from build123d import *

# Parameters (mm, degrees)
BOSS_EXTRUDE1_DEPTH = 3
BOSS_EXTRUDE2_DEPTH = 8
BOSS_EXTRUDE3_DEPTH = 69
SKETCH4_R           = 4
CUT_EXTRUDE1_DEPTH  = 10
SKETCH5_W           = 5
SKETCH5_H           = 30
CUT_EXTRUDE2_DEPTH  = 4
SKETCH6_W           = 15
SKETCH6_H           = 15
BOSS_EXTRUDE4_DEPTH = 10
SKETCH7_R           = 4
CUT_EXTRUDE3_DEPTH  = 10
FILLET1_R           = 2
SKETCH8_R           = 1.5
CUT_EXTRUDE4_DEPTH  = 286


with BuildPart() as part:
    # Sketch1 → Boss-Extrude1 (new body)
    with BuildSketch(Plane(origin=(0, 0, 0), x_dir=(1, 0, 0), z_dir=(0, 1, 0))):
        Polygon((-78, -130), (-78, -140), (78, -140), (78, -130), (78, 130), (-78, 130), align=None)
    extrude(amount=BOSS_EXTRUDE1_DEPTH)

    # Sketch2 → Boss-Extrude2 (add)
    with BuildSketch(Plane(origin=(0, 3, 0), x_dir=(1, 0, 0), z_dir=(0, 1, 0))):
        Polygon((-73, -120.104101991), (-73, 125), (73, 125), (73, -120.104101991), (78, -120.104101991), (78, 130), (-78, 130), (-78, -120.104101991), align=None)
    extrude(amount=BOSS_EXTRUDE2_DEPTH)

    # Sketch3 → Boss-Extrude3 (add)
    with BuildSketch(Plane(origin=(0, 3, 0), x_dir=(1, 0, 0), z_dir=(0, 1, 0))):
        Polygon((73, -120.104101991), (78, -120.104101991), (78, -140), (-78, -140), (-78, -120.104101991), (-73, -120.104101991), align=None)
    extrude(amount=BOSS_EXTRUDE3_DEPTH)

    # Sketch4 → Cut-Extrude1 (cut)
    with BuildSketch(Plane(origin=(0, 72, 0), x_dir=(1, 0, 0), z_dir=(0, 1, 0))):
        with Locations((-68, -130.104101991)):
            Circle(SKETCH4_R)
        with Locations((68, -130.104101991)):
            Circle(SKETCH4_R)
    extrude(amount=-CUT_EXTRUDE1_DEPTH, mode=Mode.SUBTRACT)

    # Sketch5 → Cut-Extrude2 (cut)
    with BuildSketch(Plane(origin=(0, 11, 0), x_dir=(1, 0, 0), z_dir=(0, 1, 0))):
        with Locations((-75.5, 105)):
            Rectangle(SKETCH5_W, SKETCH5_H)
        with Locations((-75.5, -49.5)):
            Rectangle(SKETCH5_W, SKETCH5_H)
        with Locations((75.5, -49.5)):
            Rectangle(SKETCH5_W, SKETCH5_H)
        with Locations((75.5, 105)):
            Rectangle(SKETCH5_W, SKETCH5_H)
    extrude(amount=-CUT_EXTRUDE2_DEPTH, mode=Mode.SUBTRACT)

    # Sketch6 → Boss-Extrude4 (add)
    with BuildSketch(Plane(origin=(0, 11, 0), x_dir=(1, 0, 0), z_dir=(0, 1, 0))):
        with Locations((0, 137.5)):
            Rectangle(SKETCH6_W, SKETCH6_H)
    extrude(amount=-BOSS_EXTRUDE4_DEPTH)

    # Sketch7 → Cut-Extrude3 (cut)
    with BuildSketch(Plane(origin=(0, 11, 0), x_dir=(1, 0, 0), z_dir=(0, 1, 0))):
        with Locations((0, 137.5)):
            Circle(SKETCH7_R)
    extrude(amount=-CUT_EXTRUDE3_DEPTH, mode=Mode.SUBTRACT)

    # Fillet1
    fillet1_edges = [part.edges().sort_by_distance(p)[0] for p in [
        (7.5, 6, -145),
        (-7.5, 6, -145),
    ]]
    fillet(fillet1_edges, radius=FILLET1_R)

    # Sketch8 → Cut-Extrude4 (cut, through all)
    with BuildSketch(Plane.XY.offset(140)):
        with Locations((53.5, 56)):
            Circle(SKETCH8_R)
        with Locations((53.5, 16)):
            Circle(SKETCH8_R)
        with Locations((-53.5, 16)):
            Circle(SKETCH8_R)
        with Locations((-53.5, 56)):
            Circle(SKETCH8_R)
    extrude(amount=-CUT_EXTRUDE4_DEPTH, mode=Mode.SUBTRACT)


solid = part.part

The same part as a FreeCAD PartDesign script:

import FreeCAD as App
import Part
import Sketcher

V = App.Vector


def edges_at(feature, points):
    """Names of the edges that pass closest to the given points."""
    edges = feature.Shape.Edges
    near = lambda p: min(range(len(edges)), key=lambda i: edges[i].distToShape(Part.Vertex(*p))[0])
    return sorted({f"Edge{near(p) + 1}" for p in points})

doc = App.newDocument("Part")
body = doc.addObject("PartDesign::Body", "Body")

sketch1 = body.newObject("Sketcher::SketchObject", "Sketch")
sketch1.AttachmentSupport = (doc.getObject("XZ_Plane"), [""])
sketch1.MapMode = "FlatFace"
sketch1.addGeometry(Part.LineSegment(V(-78, 140, 0), V(78, 140, 0)), False)
sketch1.addGeometry(Part.LineSegment(V(78, 140, 0), V(78, -130, 0)), False)
sketch1.addGeometry(Part.LineSegment(V(78, -130, 0), V(-78, -130, 0)), False)
sketch1.addGeometry(Part.LineSegment(V(-78, -130, 0), V(-78, 140, 0)), False)
sketch1.addConstraint(Sketcher.Constraint("Coincident", 0, 2, 1, 1))
sketch1.addConstraint(Sketcher.Constraint("Coincident", 1, 2, 2, 1))
sketch1.addConstraint(Sketcher.Constraint("Coincident", 2, 2, 3, 1))
sketch1.addConstraint(Sketcher.Constraint("Coincident", 3, 2, 0, 1))
sketch1.addConstraint(Sketcher.Constraint("Horizontal", 0))
sketch1.addConstraint(Sketcher.Constraint("Vertical", 1))
sketch1.addConstraint(Sketcher.Constraint("Horizontal", 2))
sketch1.addConstraint(Sketcher.Constraint("Vertical", 3))
sketch1.addConstraint(Sketcher.Constraint("DistanceX", 0, 1, 0, 2, 156.0))
sketch1.addConstraint(Sketcher.Constraint("DistanceY", 1, 2, 1, 1, 270.0))
sketch1.addConstraint(Sketcher.Constraint("DistanceX", -1, 1, 0, 2, 78.0))
sketch1.addConstraint(Sketcher.Constraint("DistanceY", -1, 1, 0, 2, 140.0))
pad1 = body.newObject("PartDesign::Pad", "Pad")
pad1.Profile = sketch1
pad1.Length = 3
pad1.Reversed = True

sketch2 = body.newObject("Sketcher::SketchObject", "Sketch001")
sketch2.AttachmentSupport = (doc.getObject("XZ_Plane"), [""])
sketch2.MapMode = "FlatFace"
sketch2.AttachmentOffset = App.Placement(V(0, 0, -3), App.Rotation())
sketch2.addGeometry(Part.LineSegment(V(-73, 120, 0), V(-73, -125, 0)), False)
sketch2.addGeometry(Part.LineSegment(V(-73, -125, 0), V(73, -125, 0)), False)
sketch2.addGeometry(Part.LineSegment(V(73, -125, 0), V(73, 120, 0)), False)
sketch2.addGeometry(Part.LineSegment(V(73, 120, 0), V(78, 120, 0)), False)
sketch2.addGeometry(Part.LineSegment(V(78, 120, 0), V(78, -130, 0)), False)
sketch2.addGeometry(Part.LineSegment(V(78, -130, 0), V(-78, -130, 0)), False)
sketch2.addGeometry(Part.LineSegment(V(-78, -130, 0), V(-78, 120, 0)), False)
sketch2.addGeometry(Part.LineSegment(V(-78, 120, 0), V(-73, 120, 0)), False)
sketch2.addConstraint(Sketcher.Constraint("Coincident", 0, 2, 1, 1))
sketch2.addConstraint(Sketcher.Constraint("Coincident", 1, 2, 2, 1))
sketch2.addConstraint(Sketcher.Constraint("Coincident", 2, 2, 3, 1))
sketch2.addConstraint(Sketcher.Constraint("Coincident", 3, 2, 4, 1))
sketch2.addConstraint(Sketcher.Constraint("Coincident", 4, 2, 5, 1))
sketch2.addConstraint(Sketcher.Constraint("Coincident", 5, 2, 6, 1))
sketch2.addConstraint(Sketcher.Constraint("Coincident", 6, 2, 7, 1))
sketch2.addConstraint(Sketcher.Constraint("Coincident", 7, 2, 0, 1))
sketch2.addConstraint(Sketcher.Constraint("Vertical", 0))
sketch2.addConstraint(Sketcher.Constraint("Horizontal", 1))
sketch2.addConstraint(Sketcher.Constraint("Vertical", 2))
sketch2.addConstraint(Sketcher.Constraint("Horizontal", 3))
sketch2.addConstraint(Sketcher.Constraint("Vertical", 4))
sketch2.addConstraint(Sketcher.Constraint("Horizontal", 5))
sketch2.addConstraint(Sketcher.Constraint("Vertical", 6))
sketch2.addConstraint(Sketcher.Constraint("Horizontal", 7))
sketch2.addConstraint(Sketcher.Constraint("Symmetric", 3, 2, 6, 2, -2))
sketch2.addConstraint(Sketcher.Constraint("Equal", 3, 7))
sketch2.addConstraint(Sketcher.Constraint("DistanceX", 1, 1, 1, 2, 146.0))
sketch2.addConstraint(Sketcher.Constraint("DistanceX", 3, 1, 3, 2, 5.0))
sketch2.addConstraint(Sketcher.Constraint("DistanceY", 0, 2, -1, 1, 125.0))
sketch2.addConstraint(Sketcher.Constraint("DistanceY", 4, 2, -1, 1, 130.0))
sketch2.addConstraint(Sketcher.Constraint("DistanceY", 0, 2, 0, 1, 245.104102))
pad2 = body.newObject("PartDesign::Pad", "Pad001")
pad2.Profile = sketch2
pad2.Length = 8
pad2.Reversed = True

sketch3 = body.newObject("Sketcher::SketchObject", "Sketch002")
sketch3.AttachmentSupport = (doc.getObject("XZ_Plane"), [""])
sketch3.MapMode = "FlatFace"
sketch3.AttachmentOffset = App.Placement(V(0, 0, -3), App.Rotation())
sketch3.addGeometry(Part.LineSegment(V(78, 120, 0), V(-78, 120, 0)), False)
sketch3.addGeometry(Part.LineSegment(V(-78, 120, 0), V(-78, 140, 0)), False)
sketch3.addGeometry(Part.LineSegment(V(-78, 140, 0), V(78, 140, 0)), False)
sketch3.addGeometry(Part.LineSegment(V(78, 140, 0), V(78, 120, 0)), False)
sketch3.addConstraint(Sketcher.Constraint("Coincident", 0, 2, 1, 1))
sketch3.addConstraint(Sketcher.Constraint("Coincident", 1, 2, 2, 1))
sketch3.addConstraint(Sketcher.Constraint("Coincident", 2, 2, 3, 1))
sketch3.addConstraint(Sketcher.Constraint("Coincident", 3, 2, 0, 1))
sketch3.addConstraint(Sketcher.Constraint("Horizontal", 0))
sketch3.addConstraint(Sketcher.Constraint("Vertical", 1))
sketch3.addConstraint(Sketcher.Constraint("Horizontal", 2))
sketch3.addConstraint(Sketcher.Constraint("Vertical", 3))
sketch3.addConstraint(Sketcher.Constraint("DistanceX", 0, 2, 0, 1, 156.0))
sketch3.addConstraint(Sketcher.Constraint("DistanceX", 0, 2, -1, 1, 78.0))
sketch3.addConstraint(Sketcher.Constraint("DistanceY", -1, 1, 1, 2, 140.0))
sketch3.addConstraint(Sketcher.Constraint("DistanceY", 1, 1, 1, 2, 19.895898))
pad3 = body.newObject("PartDesign::Pad", "Pad002")
pad3.Profile = sketch3
pad3.Length = 69
pad3.Reversed = True

sketch4 = body.newObject("Sketcher::SketchObject", "Sketch003")
sketch4.AttachmentSupport = (doc.getObject("XZ_Plane"), [""])
sketch4.MapMode = "FlatFace"
sketch4.AttachmentOffset = App.Placement(V(0, 0, -72), App.Rotation())
sketch4.addGeometry(Part.Circle(V(-68, 130.1, 0), V(0, 0, 1), 4), False)
sketch4.addGeometry(Part.Circle(V(68, 130.1, 0), V(0, 0, 1), 4), False)
sketch4.addConstraint(Sketcher.Constraint("Equal", 0, 1))
sketch4.addConstraint(Sketcher.Constraint("Symmetric", 0, 3, 1, 3, -2))
sketch4.addConstraint(Sketcher.Constraint("Diameter", 0, 8.0))
sketch4.addConstraint(Sketcher.Constraint("DistanceX", 0, 3, -1, 1, 68.0))
sketch4.addConstraint(Sketcher.Constraint("DistanceY", -1, 1, 0, 3, 130.104102))
pocket1 = body.newObject("PartDesign::Pocket", "Pocket")
pocket1.Profile = sketch4
pocket1.Length = 10
pocket1.Reversed = True

sketch5 = body.newObject("Sketcher::SketchObject", "Sketch004")
sketch5.AttachmentSupport = (doc.getObject("XZ_Plane"), [""])
sketch5.MapMode = "FlatFace"
sketch5.AttachmentOffset = App.Placement(V(0, 0, -11), App.Rotation())
sketch5.addGeometry(Part.LineSegment(V(-78, -120, 0), V(-78, -90, 0)), False)
sketch5.addGeometry(Part.LineSegment(V(-78, -90, 0), V(-73, -90, 0)), False)
sketch5.addGeometry(Part.LineSegment(V(-73, -90, 0), V(-73, -120, 0)), False)
sketch5.addGeometry(Part.LineSegment(V(-73, -120, 0), V(-78, -120, 0)), False)
sketch5.addGeometry(Part.LineSegment(V(-78, 34, 0), V(-78, 64, 0)), False)
sketch5.addGeometry(Part.LineSegment(V(-78, 64, 0), V(-73, 64, 0)), False)
sketch5.addGeometry(Part.LineSegment(V(-73, 64, 0), V(-73, 34, 0)), False)
sketch5.addGeometry(Part.LineSegment(V(-73, 34, 0), V(-78, 34, 0)), False)
sketch5.addGeometry(Part.LineSegment(V(73, 34, 0), V(73, 64, 0)), False)
sketch5.addGeometry(Part.LineSegment(V(73, 64, 0), V(78, 64, 0)), False)
sketch5.addGeometry(Part.LineSegment(V(78, 64, 0), V(78, 34, 0)), False)
sketch5.addGeometry(Part.LineSegment(V(78, 34, 0), V(73, 34, 0)), False)
sketch5.addGeometry(Part.LineSegment(V(73, -120, 0), V(73, -90, 0)), False)
sketch5.addGeometry(Part.LineSegment(V(73, -90, 0), V(78, -90, 0)), False)
sketch5.addGeometry(Part.LineSegment(V(78, -90, 0), V(78, -120, 0)), False)
sketch5.addGeometry(Part.LineSegment(V(78, -120, 0), V(73, -120, 0)), False)
sketch5.addConstraint(Sketcher.Constraint("Coincident", 0, 2, 1, 1))
sketch5.addConstraint(Sketcher.Constraint("Coincident", 1, 2, 2, 1))
sketch5.addConstraint(Sketcher.Constraint("Coincident", 2, 2, 3, 1))
sketch5.addConstraint(Sketcher.Constraint("Coincident", 3, 2, 0, 1))
sketch5.addConstraint(Sketcher.Constraint("Coincident", 4, 2, 5, 1))
sketch5.addConstraint(Sketcher.Constraint("Coincident", 5, 2, 6, 1))
sketch5.addConstraint(Sketcher.Constraint("Coincident", 6, 2, 7, 1))
sketch5.addConstraint(Sketcher.Constraint("Coincident", 7, 2, 4, 1))
sketch5.addConstraint(Sketcher.Constraint("Coincident", 8, 2, 9, 1))
sketch5.addConstraint(Sketcher.Constraint("Coincident", 9, 2, 10, 1))
sketch5.addConstraint(Sketcher.Constraint("Coincident", 10, 2, 11, 1))
sketch5.addConstraint(Sketcher.Constraint("Coincident", 11, 2, 8, 1))
sketch5.addConstraint(Sketcher.Constraint("Coincident", 12, 2, 13, 1))
sketch5.addConstraint(Sketcher.Constraint("Coincident", 13, 2, 14, 1))
sketch5.addConstraint(Sketcher.Constraint("Coincident", 14, 2, 15, 1))
sketch5.addConstraint(Sketcher.Constraint("Coincident", 15, 2, 12, 1))
sketch5.addConstraint(Sketcher.Constraint("Vertical", 0))
sketch5.addConstraint(Sketcher.Constraint("Horizontal", 1))
sketch5.addConstraint(Sketcher.Constraint("Vertical", 2))
sketch5.addConstraint(Sketcher.Constraint("Horizontal", 3))
sketch5.addConstraint(Sketcher.Constraint("Vertical", 4))
sketch5.addConstraint(Sketcher.Constraint("Horizontal", 5))
sketch5.addConstraint(Sketcher.Constraint("Vertical", 6))
sketch5.addConstraint(Sketcher.Constraint("Horizontal", 7))
sketch5.addConstraint(Sketcher.Constraint("Vertical", 8))
sketch5.addConstraint(Sketcher.Constraint("Horizontal", 9))
sketch5.addConstraint(Sketcher.Constraint("Vertical", 10))
sketch5.addConstraint(Sketcher.Constraint("Horizontal", 11))
sketch5.addConstraint(Sketcher.Constraint("Vertical", 12))
sketch5.addConstraint(Sketcher.Constraint("Horizontal", 13))
sketch5.addConstraint(Sketcher.Constraint("Vertical", 14))
sketch5.addConstraint(Sketcher.Constraint("Horizontal", 15))
sketch5.addConstraint(Sketcher.Constraint("Symmetric", 5, 2, 8, 2, -2))
sketch5.addConstraint(Sketcher.Constraint("Symmetric", 7, 2, 10, 2, -2))
sketch5.addConstraint(Sketcher.Constraint("Symmetric", 1, 2, 12, 2, -2))
sketch5.addConstraint(Sketcher.Constraint("Symmetric", 3, 2, 14, 2, -2))
sketch5.addConstraint(Sketcher.Constraint("Vertical", 3, 2, 4, 2))
sketch5.addConstraint(Sketcher.Constraint("Vertical", 2, 2, 5, 2))
sketch5.addConstraint(Sketcher.Constraint("Equal", 2, 4))
sketch5.addConstraint(Sketcher.Constraint("DistanceX", 1, 1, 1, 2, 5.0))
sketch5.addConstraint(Sketcher.Constraint("DistanceY", 0, 1, 0, 2, 30.0))
sketch5.addConstraint(Sketcher.Constraint("DistanceX", 0, 2, -1, 1, 78.0))
sketch5.addConstraint(Sketcher.Constraint("DistanceY", 0, 2, -1, 1, 90.0))
sketch5.addConstraint(Sketcher.Constraint("DistanceY", -1, 1, 4, 2, 64.5))
pocket2 = body.newObject("PartDesign::Pocket", "Pocket001")
pocket2.Profile = sketch5
pocket2.Length = 4
pocket2.Reversed = True

sketch6 = body.newObject("Sketcher::SketchObject", "Sketch005")
sketch6.AttachmentSupport = (doc.getObject("XZ_Plane"), [""])
sketch6.MapMode = "FlatFace"
sketch6.AttachmentOffset = App.Placement(V(0, 0, -11), App.Rotation())
sketch6.addGeometry(Part.LineSegment(V(-8, -145, 0), V(-8, -130, 0)), False)
sketch6.addGeometry(Part.LineSegment(V(-8, -130, 0), V(8, -130, 0)), False)
sketch6.addGeometry(Part.LineSegment(V(8, -130, 0), V(8, -145, 0)), False)
sketch6.addGeometry(Part.LineSegment(V(8, -145, 0), V(-8, -145, 0)), False)
sketch6.addConstraint(Sketcher.Constraint("Coincident", 0, 2, 1, 1))
sketch6.addConstraint(Sketcher.Constraint("Coincident", 1, 2, 2, 1))
sketch6.addConstraint(Sketcher.Constraint("Coincident", 2, 2, 3, 1))
sketch6.addConstraint(Sketcher.Constraint("Coincident", 3, 2, 0, 1))
sketch6.addConstraint(Sketcher.Constraint("Vertical", 0))
sketch6.addConstraint(Sketcher.Constraint("Horizontal", 1))
sketch6.addConstraint(Sketcher.Constraint("Vertical", 2))
sketch6.addConstraint(Sketcher.Constraint("Horizontal", 3))
sketch6.addConstraint(Sketcher.Constraint("Equal", 3, 0))
sketch6.addConstraint(Sketcher.Constraint("DistanceX", 1, 1, 1, 2, 15.0))
sketch6.addConstraint(Sketcher.Constraint("DistanceY", 0, 2, -1, 1, 130.0))
sketch6.addConstraint(Sketcher.Constraint("DistanceX", 0, 2, -1, 1, 7.5))
pad4 = body.newObject("PartDesign::Pad", "Pad003")
pad4.Profile = sketch6
pad4.Length = 10

sketch7 = body.newObject("Sketcher::SketchObject", "Sketch006")
sketch7.AttachmentSupport = (doc.getObject("XZ_Plane"), [""])
sketch7.MapMode = "FlatFace"
sketch7.AttachmentOffset = App.Placement(V(0, 0, -11), App.Rotation())
sketch7.addGeometry(Part.Circle(V(0, -137.5, 0), V(0, 0, 1), 4), False)
sketch7.addConstraint(Sketcher.Constraint("PointOnObject", 0, 3, -2))
sketch7.addConstraint(Sketcher.Constraint("Diameter", 0, 8.0))
sketch7.addConstraint(Sketcher.Constraint("DistanceY", 0, 3, -1, 1, 137.5))
pocket3 = body.newObject("PartDesign::Pocket", "Pocket002")
pocket3.Profile = sketch7
pocket3.Length = 10
pocket3.Reversed = True
doc.recompute()

fillet = body.newObject("PartDesign::Fillet", "Fillet")
fillet.Base = (pocket3, edges_at(pocket3, [(7.5, 6, -145), (-7.5, 6, -145)]))
fillet.Radius = 2

sketch8 = body.newObject("Sketcher::SketchObject", "Sketch007")
sketch8.AttachmentSupport = (doc.getObject("XY_Plane"), [""])
sketch8.MapMode = "FlatFace"
sketch8.AttachmentOffset = App.Placement(V(0, 0, 140), App.Rotation())
sketch8.addGeometry(Part.Circle(V(53.5, 56, 0), V(0, 0, 1), 1.5), False)
sketch8.addGeometry(Part.Circle(V(53.5, 16, 0), V(0, 0, 1), 1.5), False)
sketch8.addGeometry(Part.Circle(V(-53.5, 16, 0), V(0, 0, 1), 1.5), False)
sketch8.addGeometry(Part.Circle(V(-53.5, 56, 0), V(0, 0, 1), 1.5), False)
sketch8.addConstraint(Sketcher.Constraint("Equal", 0, 1))
sketch8.addConstraint(Sketcher.Constraint("Equal", 1, 2))
sketch8.addConstraint(Sketcher.Constraint("Equal", 2, 3))
sketch8.addConstraint(Sketcher.Constraint("Symmetric", 1, 3, 2, 3, -2))
sketch8.addConstraint(Sketcher.Constraint("Symmetric", 0, 3, 3, 3, -2))
sketch8.addConstraint(Sketcher.Constraint("Vertical", 0, 3, 1, 3))
sketch8.addConstraint(Sketcher.Constraint("Diameter", 0, 3.0))
sketch8.addConstraint(Sketcher.Constraint("DistanceY", -1, 1, 0, 3, 56.0))
sketch8.addConstraint(Sketcher.Constraint("DistanceY", -1, 1, 1, 3, 16.0))
sketch8.addConstraint(Sketcher.Constraint("DistanceX", 2, 3, 1, 3, 107.0))
pocket4 = body.newObject("PartDesign::Pocket", "Pocket003")
pocket4.Profile = sketch8
pocket4.Type = "ThroughAll"

doc.recompute()
